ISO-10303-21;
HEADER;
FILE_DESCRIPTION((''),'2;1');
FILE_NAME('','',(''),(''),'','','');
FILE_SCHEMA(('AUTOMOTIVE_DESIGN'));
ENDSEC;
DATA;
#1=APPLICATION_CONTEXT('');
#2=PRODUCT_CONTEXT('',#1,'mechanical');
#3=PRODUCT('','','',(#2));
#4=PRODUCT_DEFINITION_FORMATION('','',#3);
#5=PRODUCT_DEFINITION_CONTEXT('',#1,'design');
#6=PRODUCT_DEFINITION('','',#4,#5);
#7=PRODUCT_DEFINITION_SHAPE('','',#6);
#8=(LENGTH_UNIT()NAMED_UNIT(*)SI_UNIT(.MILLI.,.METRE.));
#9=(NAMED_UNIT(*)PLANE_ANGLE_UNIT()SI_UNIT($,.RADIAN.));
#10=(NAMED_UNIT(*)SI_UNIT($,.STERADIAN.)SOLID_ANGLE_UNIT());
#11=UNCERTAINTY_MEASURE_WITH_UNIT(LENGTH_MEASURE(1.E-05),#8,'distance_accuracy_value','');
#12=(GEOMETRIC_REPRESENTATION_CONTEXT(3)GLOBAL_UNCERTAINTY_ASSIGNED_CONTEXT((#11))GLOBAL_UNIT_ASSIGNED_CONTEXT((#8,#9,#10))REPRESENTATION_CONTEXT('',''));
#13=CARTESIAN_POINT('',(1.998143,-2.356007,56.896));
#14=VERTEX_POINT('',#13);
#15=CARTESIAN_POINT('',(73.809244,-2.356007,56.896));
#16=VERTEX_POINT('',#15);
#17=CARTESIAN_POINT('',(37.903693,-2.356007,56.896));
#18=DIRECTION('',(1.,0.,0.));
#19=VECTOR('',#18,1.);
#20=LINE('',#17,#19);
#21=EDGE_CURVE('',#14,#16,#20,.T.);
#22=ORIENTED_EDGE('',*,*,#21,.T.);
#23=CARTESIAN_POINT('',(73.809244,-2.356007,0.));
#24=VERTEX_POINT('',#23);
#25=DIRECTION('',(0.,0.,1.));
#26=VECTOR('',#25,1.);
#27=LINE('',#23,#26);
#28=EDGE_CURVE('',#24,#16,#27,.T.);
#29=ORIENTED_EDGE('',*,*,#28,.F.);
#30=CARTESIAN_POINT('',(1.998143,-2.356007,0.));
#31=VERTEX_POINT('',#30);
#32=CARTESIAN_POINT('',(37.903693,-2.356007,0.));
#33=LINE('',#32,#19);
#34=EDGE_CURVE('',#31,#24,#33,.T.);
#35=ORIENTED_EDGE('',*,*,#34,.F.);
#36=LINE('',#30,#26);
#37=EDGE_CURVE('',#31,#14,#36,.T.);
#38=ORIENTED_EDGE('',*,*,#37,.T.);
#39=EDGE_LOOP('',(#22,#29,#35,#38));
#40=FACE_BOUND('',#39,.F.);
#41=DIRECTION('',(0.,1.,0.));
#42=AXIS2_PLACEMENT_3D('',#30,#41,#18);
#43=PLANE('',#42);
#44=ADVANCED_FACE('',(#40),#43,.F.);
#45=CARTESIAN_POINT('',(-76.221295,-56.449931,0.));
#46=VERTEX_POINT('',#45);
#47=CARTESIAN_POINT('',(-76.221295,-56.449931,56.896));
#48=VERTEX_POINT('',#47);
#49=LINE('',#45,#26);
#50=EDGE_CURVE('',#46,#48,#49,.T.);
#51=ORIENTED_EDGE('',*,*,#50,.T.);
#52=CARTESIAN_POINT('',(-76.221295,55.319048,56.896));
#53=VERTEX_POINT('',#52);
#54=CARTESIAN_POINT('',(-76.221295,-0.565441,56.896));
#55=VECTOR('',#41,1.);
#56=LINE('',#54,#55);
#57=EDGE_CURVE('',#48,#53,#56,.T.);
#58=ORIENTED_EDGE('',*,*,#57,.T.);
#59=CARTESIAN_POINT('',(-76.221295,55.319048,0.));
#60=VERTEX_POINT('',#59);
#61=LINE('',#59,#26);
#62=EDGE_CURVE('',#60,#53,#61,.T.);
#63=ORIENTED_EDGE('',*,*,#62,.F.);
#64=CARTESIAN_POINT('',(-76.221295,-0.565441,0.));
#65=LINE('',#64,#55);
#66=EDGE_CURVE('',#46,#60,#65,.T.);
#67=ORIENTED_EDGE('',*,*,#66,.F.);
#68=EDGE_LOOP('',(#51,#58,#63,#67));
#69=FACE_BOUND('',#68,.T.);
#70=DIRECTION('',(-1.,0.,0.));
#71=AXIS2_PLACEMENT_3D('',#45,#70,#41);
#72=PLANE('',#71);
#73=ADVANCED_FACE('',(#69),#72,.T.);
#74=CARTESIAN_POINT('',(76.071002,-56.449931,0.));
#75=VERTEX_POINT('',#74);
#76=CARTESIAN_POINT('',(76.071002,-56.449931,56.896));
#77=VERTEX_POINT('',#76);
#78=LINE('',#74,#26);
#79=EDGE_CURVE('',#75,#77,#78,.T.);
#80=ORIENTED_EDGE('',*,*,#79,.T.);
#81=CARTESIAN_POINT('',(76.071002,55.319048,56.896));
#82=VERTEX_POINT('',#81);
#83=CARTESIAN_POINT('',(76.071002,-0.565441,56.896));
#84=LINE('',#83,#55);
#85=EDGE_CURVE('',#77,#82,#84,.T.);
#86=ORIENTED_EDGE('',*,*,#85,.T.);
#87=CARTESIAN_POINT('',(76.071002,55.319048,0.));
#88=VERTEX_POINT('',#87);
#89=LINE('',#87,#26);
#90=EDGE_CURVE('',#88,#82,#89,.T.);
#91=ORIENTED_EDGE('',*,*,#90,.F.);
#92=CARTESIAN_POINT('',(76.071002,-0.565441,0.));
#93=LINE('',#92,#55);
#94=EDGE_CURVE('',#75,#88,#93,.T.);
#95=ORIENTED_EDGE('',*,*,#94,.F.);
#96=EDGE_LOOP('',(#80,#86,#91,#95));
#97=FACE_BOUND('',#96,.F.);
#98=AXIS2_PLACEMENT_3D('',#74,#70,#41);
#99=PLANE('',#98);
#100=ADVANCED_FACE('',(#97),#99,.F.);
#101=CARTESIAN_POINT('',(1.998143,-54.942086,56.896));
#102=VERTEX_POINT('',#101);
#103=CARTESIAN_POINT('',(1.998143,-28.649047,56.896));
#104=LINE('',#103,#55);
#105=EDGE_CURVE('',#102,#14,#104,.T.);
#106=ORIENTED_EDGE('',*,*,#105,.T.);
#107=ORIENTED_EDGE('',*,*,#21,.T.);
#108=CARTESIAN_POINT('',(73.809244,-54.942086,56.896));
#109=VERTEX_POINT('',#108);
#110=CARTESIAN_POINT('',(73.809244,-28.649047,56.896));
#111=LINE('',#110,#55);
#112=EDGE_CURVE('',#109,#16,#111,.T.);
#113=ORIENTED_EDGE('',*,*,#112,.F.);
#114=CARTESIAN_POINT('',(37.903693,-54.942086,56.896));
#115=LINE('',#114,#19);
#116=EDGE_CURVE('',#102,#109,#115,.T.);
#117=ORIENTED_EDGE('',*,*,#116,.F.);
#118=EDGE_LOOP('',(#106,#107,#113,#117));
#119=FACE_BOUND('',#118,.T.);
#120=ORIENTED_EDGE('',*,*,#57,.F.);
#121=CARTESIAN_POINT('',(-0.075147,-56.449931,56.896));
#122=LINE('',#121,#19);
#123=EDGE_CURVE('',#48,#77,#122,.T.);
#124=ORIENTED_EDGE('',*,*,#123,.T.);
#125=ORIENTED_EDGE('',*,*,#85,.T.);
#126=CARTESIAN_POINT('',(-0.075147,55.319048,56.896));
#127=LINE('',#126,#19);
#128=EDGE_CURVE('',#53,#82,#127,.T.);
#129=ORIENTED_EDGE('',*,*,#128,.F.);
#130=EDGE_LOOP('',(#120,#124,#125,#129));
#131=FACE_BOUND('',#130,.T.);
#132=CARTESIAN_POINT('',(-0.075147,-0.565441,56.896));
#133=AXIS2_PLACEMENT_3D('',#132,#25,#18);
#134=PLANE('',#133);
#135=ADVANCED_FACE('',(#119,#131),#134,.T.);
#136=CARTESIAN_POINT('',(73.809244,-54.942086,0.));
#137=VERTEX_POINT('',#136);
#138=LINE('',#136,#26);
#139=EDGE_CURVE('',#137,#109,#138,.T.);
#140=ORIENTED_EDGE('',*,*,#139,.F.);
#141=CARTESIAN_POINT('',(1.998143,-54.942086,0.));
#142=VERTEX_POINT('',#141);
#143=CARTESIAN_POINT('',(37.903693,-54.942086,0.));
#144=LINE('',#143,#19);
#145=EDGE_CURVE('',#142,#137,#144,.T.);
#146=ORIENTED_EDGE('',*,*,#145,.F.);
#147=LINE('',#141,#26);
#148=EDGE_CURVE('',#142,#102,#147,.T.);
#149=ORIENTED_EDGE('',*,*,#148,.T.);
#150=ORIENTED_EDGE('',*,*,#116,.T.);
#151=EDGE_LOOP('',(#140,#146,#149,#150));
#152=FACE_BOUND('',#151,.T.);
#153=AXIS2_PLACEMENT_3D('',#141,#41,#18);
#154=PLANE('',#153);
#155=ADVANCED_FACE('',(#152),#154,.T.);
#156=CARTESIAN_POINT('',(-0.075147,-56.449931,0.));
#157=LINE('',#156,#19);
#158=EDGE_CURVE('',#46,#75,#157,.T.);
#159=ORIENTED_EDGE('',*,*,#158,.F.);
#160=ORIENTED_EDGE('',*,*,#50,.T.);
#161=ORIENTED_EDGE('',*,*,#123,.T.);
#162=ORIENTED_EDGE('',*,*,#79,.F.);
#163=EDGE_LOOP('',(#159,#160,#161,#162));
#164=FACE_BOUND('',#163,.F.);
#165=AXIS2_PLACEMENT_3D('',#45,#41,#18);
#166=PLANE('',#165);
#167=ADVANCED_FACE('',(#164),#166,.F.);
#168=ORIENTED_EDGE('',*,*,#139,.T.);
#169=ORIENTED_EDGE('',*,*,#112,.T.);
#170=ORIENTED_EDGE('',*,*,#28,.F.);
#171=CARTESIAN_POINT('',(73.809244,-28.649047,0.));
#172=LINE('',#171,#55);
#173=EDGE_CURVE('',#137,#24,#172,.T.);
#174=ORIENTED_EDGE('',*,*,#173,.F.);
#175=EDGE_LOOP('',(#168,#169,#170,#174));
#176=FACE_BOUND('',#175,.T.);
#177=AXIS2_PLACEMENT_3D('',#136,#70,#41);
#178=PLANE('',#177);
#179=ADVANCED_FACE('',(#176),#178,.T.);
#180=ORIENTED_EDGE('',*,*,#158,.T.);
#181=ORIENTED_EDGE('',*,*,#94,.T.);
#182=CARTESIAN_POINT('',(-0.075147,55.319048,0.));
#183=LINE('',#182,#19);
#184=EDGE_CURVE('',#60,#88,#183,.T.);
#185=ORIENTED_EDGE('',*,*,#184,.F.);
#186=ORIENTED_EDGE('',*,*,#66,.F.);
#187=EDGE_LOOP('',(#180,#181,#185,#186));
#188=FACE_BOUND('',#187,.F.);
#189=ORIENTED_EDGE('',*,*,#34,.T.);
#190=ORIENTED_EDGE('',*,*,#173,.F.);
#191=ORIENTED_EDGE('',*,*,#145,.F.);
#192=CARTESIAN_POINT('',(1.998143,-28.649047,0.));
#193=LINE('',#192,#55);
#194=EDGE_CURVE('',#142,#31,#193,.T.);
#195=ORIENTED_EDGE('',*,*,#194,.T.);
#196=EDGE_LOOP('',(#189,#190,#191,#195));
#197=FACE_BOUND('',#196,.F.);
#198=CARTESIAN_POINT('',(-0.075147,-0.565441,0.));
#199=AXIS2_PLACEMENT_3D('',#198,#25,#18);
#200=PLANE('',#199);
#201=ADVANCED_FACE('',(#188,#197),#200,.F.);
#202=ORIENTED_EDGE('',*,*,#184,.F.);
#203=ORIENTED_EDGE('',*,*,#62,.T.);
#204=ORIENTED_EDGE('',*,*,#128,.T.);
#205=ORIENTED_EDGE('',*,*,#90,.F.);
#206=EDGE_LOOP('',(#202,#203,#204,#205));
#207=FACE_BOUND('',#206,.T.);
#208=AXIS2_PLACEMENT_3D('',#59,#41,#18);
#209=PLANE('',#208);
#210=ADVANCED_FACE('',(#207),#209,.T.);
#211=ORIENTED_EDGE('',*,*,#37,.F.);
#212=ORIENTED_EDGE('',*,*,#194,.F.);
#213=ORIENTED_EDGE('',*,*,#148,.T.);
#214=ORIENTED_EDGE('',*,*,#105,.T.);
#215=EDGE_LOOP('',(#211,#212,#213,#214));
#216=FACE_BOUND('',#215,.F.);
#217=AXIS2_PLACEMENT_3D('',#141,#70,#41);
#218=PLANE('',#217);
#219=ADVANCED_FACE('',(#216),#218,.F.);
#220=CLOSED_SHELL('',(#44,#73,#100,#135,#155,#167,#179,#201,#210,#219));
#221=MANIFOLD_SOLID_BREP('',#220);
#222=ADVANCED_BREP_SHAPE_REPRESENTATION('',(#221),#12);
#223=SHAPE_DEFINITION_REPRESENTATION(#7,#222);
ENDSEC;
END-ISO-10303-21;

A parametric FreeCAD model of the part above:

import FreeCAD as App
import Part
import Sketcher
from FreeCAD import Vector
Q = App.Units.Quantity


def add_polygon(sketch, points):
    """Adds a closed chain of lines whose ends are joined by coincident constraints."""
    first, n = sketch.GeometryCount, len(points)
    for a, b in zip(points, points[1:] + points[:1]):
        sketch.addGeometry(Part.LineSegment(App.Vector(*a, 0), App.Vector(*b, 0)), False)
    for i in range(n):
        sketch.addConstraint(Sketcher.Constraint("Coincident", first + i, 2, first + (i + 1) % n, 1))

doc = App.newDocument("Part")
body = doc.addObject("PartDesign::Body", "Body")

# Sketch on XY plane
sketch1 = body.newObject("Sketcher::SketchObject", "Sketch")
sketch1.AttachmentSupport = (doc.getObject("XY_Plane"), [""])
sketch1.MapMode = "FlatFace"
add_polygon(sketch1, [(0, 0), (0, -75.674951), (75.1286, -75.674951), (75.1286, 0)])  # lines 0-3
sketch1.addConstraint(Sketcher.Constraint("Vertical", 0))
sketch1.addConstraint(Sketcher.Constraint("Horizontal", 1))
sketch1.addConstraint(Sketcher.Constraint("Vertical", 2))
sketch1.addConstraint(Sketcher.Constraint("Horizontal", 3))
sketch1.addConstraint(Sketcher.Constraint("Coincident", 3, 2, -1, 1))
sketch1.addConstraint(Sketcher.Constraint("DistanceX", 1, 1, 1, 2, 75.1286))
sketch1.addConstraint(Sketcher.Constraint("DistanceY", 0, 2, 0, 1, 75.674951))
pad1 = body.newObject("PartDesign::Pad", "Pad")
pad1.Profile = sketch1
pad1.Length = Q("1 in")
body2 = doc.addObject("PartDesign::Body", "Body001")

# Sketch on XY plane
sketch2 = body2.newObject("Sketcher::SketchObject", "Sketch001")
sketch2.AttachmentSupport = (doc.getObject("XY_Plane001"), [""])
sketch2.MapMode = "FlatFace"
add_polygon(sketch2, [(-76.221295, 55.319048), (-76.221295, -56.449931), (76.071002, -56.449931), (76.071002, 55.319048)])  # lines 0-3
add_polygon(sketch2, [(73.809244, -54.942086), (1.998143, -54.942086), (1.998143, -2.356007), (73.809244, -2.356007)])  # lines 4-7
sketch2.addConstraint(Sketcher.Constraint("Vertical", 0))
sketch2.addConstraint(Sketcher.Constraint("Horizontal", 1))
sketch2.addConstraint(Sketcher.Constraint("Vertical", 2))
sketch2.addConstraint(Sketcher.Constraint("Horizontal", 3))
sketch2.addConstraint(Sketcher.Constraint("Horizontal", 4))
sketch2.addConstraint(Sketcher.Constraint("Vertical", 5))
sketch2.addConstraint(Sketcher.Constraint("Horizontal", 6))
sketch2.addConstraint(Sketcher.Constraint("Vertical", 7))
sketch2.addConstraint(Sketcher.Constraint("DistanceX", 4, 2, 4, 1, 71.811101))
sketch2.addConstraint(Sketcher.Constraint("DistanceY", 0, 2, 0, 1, 111.76898))
sketch2.addConstraint(Sketcher.Constraint("DistanceY", 5, 1, 5, 2, 52.586079))
sketch2.addConstraint(Sketcher.Constraint("DistanceX", -1, 1, 1, 2, 76.071002))
sketch2.addConstraint(Sketcher.Constraint("DistanceX", 1, 1, 1, 2, 152.292296))
sketch2.addConstraint(Sketcher.Constraint("DistanceY", 0, 2, -1, 1, 56.449931))
sketch2.addConstraint(Sketcher.Constraint("DistanceX", 4, 2, 1, 2, 74.072859))
sketch2.addConstraint(Sketcher.Constraint("DistanceY", 4, 2, -1, 1, 54.942086))
pad2 = body2.newObject("PartDesign::Pad", "Pad001")
pad2.Profile = sketch2
pad2.Length = Q("2.24 in")
body.Visibility = False

doc.recompute()
